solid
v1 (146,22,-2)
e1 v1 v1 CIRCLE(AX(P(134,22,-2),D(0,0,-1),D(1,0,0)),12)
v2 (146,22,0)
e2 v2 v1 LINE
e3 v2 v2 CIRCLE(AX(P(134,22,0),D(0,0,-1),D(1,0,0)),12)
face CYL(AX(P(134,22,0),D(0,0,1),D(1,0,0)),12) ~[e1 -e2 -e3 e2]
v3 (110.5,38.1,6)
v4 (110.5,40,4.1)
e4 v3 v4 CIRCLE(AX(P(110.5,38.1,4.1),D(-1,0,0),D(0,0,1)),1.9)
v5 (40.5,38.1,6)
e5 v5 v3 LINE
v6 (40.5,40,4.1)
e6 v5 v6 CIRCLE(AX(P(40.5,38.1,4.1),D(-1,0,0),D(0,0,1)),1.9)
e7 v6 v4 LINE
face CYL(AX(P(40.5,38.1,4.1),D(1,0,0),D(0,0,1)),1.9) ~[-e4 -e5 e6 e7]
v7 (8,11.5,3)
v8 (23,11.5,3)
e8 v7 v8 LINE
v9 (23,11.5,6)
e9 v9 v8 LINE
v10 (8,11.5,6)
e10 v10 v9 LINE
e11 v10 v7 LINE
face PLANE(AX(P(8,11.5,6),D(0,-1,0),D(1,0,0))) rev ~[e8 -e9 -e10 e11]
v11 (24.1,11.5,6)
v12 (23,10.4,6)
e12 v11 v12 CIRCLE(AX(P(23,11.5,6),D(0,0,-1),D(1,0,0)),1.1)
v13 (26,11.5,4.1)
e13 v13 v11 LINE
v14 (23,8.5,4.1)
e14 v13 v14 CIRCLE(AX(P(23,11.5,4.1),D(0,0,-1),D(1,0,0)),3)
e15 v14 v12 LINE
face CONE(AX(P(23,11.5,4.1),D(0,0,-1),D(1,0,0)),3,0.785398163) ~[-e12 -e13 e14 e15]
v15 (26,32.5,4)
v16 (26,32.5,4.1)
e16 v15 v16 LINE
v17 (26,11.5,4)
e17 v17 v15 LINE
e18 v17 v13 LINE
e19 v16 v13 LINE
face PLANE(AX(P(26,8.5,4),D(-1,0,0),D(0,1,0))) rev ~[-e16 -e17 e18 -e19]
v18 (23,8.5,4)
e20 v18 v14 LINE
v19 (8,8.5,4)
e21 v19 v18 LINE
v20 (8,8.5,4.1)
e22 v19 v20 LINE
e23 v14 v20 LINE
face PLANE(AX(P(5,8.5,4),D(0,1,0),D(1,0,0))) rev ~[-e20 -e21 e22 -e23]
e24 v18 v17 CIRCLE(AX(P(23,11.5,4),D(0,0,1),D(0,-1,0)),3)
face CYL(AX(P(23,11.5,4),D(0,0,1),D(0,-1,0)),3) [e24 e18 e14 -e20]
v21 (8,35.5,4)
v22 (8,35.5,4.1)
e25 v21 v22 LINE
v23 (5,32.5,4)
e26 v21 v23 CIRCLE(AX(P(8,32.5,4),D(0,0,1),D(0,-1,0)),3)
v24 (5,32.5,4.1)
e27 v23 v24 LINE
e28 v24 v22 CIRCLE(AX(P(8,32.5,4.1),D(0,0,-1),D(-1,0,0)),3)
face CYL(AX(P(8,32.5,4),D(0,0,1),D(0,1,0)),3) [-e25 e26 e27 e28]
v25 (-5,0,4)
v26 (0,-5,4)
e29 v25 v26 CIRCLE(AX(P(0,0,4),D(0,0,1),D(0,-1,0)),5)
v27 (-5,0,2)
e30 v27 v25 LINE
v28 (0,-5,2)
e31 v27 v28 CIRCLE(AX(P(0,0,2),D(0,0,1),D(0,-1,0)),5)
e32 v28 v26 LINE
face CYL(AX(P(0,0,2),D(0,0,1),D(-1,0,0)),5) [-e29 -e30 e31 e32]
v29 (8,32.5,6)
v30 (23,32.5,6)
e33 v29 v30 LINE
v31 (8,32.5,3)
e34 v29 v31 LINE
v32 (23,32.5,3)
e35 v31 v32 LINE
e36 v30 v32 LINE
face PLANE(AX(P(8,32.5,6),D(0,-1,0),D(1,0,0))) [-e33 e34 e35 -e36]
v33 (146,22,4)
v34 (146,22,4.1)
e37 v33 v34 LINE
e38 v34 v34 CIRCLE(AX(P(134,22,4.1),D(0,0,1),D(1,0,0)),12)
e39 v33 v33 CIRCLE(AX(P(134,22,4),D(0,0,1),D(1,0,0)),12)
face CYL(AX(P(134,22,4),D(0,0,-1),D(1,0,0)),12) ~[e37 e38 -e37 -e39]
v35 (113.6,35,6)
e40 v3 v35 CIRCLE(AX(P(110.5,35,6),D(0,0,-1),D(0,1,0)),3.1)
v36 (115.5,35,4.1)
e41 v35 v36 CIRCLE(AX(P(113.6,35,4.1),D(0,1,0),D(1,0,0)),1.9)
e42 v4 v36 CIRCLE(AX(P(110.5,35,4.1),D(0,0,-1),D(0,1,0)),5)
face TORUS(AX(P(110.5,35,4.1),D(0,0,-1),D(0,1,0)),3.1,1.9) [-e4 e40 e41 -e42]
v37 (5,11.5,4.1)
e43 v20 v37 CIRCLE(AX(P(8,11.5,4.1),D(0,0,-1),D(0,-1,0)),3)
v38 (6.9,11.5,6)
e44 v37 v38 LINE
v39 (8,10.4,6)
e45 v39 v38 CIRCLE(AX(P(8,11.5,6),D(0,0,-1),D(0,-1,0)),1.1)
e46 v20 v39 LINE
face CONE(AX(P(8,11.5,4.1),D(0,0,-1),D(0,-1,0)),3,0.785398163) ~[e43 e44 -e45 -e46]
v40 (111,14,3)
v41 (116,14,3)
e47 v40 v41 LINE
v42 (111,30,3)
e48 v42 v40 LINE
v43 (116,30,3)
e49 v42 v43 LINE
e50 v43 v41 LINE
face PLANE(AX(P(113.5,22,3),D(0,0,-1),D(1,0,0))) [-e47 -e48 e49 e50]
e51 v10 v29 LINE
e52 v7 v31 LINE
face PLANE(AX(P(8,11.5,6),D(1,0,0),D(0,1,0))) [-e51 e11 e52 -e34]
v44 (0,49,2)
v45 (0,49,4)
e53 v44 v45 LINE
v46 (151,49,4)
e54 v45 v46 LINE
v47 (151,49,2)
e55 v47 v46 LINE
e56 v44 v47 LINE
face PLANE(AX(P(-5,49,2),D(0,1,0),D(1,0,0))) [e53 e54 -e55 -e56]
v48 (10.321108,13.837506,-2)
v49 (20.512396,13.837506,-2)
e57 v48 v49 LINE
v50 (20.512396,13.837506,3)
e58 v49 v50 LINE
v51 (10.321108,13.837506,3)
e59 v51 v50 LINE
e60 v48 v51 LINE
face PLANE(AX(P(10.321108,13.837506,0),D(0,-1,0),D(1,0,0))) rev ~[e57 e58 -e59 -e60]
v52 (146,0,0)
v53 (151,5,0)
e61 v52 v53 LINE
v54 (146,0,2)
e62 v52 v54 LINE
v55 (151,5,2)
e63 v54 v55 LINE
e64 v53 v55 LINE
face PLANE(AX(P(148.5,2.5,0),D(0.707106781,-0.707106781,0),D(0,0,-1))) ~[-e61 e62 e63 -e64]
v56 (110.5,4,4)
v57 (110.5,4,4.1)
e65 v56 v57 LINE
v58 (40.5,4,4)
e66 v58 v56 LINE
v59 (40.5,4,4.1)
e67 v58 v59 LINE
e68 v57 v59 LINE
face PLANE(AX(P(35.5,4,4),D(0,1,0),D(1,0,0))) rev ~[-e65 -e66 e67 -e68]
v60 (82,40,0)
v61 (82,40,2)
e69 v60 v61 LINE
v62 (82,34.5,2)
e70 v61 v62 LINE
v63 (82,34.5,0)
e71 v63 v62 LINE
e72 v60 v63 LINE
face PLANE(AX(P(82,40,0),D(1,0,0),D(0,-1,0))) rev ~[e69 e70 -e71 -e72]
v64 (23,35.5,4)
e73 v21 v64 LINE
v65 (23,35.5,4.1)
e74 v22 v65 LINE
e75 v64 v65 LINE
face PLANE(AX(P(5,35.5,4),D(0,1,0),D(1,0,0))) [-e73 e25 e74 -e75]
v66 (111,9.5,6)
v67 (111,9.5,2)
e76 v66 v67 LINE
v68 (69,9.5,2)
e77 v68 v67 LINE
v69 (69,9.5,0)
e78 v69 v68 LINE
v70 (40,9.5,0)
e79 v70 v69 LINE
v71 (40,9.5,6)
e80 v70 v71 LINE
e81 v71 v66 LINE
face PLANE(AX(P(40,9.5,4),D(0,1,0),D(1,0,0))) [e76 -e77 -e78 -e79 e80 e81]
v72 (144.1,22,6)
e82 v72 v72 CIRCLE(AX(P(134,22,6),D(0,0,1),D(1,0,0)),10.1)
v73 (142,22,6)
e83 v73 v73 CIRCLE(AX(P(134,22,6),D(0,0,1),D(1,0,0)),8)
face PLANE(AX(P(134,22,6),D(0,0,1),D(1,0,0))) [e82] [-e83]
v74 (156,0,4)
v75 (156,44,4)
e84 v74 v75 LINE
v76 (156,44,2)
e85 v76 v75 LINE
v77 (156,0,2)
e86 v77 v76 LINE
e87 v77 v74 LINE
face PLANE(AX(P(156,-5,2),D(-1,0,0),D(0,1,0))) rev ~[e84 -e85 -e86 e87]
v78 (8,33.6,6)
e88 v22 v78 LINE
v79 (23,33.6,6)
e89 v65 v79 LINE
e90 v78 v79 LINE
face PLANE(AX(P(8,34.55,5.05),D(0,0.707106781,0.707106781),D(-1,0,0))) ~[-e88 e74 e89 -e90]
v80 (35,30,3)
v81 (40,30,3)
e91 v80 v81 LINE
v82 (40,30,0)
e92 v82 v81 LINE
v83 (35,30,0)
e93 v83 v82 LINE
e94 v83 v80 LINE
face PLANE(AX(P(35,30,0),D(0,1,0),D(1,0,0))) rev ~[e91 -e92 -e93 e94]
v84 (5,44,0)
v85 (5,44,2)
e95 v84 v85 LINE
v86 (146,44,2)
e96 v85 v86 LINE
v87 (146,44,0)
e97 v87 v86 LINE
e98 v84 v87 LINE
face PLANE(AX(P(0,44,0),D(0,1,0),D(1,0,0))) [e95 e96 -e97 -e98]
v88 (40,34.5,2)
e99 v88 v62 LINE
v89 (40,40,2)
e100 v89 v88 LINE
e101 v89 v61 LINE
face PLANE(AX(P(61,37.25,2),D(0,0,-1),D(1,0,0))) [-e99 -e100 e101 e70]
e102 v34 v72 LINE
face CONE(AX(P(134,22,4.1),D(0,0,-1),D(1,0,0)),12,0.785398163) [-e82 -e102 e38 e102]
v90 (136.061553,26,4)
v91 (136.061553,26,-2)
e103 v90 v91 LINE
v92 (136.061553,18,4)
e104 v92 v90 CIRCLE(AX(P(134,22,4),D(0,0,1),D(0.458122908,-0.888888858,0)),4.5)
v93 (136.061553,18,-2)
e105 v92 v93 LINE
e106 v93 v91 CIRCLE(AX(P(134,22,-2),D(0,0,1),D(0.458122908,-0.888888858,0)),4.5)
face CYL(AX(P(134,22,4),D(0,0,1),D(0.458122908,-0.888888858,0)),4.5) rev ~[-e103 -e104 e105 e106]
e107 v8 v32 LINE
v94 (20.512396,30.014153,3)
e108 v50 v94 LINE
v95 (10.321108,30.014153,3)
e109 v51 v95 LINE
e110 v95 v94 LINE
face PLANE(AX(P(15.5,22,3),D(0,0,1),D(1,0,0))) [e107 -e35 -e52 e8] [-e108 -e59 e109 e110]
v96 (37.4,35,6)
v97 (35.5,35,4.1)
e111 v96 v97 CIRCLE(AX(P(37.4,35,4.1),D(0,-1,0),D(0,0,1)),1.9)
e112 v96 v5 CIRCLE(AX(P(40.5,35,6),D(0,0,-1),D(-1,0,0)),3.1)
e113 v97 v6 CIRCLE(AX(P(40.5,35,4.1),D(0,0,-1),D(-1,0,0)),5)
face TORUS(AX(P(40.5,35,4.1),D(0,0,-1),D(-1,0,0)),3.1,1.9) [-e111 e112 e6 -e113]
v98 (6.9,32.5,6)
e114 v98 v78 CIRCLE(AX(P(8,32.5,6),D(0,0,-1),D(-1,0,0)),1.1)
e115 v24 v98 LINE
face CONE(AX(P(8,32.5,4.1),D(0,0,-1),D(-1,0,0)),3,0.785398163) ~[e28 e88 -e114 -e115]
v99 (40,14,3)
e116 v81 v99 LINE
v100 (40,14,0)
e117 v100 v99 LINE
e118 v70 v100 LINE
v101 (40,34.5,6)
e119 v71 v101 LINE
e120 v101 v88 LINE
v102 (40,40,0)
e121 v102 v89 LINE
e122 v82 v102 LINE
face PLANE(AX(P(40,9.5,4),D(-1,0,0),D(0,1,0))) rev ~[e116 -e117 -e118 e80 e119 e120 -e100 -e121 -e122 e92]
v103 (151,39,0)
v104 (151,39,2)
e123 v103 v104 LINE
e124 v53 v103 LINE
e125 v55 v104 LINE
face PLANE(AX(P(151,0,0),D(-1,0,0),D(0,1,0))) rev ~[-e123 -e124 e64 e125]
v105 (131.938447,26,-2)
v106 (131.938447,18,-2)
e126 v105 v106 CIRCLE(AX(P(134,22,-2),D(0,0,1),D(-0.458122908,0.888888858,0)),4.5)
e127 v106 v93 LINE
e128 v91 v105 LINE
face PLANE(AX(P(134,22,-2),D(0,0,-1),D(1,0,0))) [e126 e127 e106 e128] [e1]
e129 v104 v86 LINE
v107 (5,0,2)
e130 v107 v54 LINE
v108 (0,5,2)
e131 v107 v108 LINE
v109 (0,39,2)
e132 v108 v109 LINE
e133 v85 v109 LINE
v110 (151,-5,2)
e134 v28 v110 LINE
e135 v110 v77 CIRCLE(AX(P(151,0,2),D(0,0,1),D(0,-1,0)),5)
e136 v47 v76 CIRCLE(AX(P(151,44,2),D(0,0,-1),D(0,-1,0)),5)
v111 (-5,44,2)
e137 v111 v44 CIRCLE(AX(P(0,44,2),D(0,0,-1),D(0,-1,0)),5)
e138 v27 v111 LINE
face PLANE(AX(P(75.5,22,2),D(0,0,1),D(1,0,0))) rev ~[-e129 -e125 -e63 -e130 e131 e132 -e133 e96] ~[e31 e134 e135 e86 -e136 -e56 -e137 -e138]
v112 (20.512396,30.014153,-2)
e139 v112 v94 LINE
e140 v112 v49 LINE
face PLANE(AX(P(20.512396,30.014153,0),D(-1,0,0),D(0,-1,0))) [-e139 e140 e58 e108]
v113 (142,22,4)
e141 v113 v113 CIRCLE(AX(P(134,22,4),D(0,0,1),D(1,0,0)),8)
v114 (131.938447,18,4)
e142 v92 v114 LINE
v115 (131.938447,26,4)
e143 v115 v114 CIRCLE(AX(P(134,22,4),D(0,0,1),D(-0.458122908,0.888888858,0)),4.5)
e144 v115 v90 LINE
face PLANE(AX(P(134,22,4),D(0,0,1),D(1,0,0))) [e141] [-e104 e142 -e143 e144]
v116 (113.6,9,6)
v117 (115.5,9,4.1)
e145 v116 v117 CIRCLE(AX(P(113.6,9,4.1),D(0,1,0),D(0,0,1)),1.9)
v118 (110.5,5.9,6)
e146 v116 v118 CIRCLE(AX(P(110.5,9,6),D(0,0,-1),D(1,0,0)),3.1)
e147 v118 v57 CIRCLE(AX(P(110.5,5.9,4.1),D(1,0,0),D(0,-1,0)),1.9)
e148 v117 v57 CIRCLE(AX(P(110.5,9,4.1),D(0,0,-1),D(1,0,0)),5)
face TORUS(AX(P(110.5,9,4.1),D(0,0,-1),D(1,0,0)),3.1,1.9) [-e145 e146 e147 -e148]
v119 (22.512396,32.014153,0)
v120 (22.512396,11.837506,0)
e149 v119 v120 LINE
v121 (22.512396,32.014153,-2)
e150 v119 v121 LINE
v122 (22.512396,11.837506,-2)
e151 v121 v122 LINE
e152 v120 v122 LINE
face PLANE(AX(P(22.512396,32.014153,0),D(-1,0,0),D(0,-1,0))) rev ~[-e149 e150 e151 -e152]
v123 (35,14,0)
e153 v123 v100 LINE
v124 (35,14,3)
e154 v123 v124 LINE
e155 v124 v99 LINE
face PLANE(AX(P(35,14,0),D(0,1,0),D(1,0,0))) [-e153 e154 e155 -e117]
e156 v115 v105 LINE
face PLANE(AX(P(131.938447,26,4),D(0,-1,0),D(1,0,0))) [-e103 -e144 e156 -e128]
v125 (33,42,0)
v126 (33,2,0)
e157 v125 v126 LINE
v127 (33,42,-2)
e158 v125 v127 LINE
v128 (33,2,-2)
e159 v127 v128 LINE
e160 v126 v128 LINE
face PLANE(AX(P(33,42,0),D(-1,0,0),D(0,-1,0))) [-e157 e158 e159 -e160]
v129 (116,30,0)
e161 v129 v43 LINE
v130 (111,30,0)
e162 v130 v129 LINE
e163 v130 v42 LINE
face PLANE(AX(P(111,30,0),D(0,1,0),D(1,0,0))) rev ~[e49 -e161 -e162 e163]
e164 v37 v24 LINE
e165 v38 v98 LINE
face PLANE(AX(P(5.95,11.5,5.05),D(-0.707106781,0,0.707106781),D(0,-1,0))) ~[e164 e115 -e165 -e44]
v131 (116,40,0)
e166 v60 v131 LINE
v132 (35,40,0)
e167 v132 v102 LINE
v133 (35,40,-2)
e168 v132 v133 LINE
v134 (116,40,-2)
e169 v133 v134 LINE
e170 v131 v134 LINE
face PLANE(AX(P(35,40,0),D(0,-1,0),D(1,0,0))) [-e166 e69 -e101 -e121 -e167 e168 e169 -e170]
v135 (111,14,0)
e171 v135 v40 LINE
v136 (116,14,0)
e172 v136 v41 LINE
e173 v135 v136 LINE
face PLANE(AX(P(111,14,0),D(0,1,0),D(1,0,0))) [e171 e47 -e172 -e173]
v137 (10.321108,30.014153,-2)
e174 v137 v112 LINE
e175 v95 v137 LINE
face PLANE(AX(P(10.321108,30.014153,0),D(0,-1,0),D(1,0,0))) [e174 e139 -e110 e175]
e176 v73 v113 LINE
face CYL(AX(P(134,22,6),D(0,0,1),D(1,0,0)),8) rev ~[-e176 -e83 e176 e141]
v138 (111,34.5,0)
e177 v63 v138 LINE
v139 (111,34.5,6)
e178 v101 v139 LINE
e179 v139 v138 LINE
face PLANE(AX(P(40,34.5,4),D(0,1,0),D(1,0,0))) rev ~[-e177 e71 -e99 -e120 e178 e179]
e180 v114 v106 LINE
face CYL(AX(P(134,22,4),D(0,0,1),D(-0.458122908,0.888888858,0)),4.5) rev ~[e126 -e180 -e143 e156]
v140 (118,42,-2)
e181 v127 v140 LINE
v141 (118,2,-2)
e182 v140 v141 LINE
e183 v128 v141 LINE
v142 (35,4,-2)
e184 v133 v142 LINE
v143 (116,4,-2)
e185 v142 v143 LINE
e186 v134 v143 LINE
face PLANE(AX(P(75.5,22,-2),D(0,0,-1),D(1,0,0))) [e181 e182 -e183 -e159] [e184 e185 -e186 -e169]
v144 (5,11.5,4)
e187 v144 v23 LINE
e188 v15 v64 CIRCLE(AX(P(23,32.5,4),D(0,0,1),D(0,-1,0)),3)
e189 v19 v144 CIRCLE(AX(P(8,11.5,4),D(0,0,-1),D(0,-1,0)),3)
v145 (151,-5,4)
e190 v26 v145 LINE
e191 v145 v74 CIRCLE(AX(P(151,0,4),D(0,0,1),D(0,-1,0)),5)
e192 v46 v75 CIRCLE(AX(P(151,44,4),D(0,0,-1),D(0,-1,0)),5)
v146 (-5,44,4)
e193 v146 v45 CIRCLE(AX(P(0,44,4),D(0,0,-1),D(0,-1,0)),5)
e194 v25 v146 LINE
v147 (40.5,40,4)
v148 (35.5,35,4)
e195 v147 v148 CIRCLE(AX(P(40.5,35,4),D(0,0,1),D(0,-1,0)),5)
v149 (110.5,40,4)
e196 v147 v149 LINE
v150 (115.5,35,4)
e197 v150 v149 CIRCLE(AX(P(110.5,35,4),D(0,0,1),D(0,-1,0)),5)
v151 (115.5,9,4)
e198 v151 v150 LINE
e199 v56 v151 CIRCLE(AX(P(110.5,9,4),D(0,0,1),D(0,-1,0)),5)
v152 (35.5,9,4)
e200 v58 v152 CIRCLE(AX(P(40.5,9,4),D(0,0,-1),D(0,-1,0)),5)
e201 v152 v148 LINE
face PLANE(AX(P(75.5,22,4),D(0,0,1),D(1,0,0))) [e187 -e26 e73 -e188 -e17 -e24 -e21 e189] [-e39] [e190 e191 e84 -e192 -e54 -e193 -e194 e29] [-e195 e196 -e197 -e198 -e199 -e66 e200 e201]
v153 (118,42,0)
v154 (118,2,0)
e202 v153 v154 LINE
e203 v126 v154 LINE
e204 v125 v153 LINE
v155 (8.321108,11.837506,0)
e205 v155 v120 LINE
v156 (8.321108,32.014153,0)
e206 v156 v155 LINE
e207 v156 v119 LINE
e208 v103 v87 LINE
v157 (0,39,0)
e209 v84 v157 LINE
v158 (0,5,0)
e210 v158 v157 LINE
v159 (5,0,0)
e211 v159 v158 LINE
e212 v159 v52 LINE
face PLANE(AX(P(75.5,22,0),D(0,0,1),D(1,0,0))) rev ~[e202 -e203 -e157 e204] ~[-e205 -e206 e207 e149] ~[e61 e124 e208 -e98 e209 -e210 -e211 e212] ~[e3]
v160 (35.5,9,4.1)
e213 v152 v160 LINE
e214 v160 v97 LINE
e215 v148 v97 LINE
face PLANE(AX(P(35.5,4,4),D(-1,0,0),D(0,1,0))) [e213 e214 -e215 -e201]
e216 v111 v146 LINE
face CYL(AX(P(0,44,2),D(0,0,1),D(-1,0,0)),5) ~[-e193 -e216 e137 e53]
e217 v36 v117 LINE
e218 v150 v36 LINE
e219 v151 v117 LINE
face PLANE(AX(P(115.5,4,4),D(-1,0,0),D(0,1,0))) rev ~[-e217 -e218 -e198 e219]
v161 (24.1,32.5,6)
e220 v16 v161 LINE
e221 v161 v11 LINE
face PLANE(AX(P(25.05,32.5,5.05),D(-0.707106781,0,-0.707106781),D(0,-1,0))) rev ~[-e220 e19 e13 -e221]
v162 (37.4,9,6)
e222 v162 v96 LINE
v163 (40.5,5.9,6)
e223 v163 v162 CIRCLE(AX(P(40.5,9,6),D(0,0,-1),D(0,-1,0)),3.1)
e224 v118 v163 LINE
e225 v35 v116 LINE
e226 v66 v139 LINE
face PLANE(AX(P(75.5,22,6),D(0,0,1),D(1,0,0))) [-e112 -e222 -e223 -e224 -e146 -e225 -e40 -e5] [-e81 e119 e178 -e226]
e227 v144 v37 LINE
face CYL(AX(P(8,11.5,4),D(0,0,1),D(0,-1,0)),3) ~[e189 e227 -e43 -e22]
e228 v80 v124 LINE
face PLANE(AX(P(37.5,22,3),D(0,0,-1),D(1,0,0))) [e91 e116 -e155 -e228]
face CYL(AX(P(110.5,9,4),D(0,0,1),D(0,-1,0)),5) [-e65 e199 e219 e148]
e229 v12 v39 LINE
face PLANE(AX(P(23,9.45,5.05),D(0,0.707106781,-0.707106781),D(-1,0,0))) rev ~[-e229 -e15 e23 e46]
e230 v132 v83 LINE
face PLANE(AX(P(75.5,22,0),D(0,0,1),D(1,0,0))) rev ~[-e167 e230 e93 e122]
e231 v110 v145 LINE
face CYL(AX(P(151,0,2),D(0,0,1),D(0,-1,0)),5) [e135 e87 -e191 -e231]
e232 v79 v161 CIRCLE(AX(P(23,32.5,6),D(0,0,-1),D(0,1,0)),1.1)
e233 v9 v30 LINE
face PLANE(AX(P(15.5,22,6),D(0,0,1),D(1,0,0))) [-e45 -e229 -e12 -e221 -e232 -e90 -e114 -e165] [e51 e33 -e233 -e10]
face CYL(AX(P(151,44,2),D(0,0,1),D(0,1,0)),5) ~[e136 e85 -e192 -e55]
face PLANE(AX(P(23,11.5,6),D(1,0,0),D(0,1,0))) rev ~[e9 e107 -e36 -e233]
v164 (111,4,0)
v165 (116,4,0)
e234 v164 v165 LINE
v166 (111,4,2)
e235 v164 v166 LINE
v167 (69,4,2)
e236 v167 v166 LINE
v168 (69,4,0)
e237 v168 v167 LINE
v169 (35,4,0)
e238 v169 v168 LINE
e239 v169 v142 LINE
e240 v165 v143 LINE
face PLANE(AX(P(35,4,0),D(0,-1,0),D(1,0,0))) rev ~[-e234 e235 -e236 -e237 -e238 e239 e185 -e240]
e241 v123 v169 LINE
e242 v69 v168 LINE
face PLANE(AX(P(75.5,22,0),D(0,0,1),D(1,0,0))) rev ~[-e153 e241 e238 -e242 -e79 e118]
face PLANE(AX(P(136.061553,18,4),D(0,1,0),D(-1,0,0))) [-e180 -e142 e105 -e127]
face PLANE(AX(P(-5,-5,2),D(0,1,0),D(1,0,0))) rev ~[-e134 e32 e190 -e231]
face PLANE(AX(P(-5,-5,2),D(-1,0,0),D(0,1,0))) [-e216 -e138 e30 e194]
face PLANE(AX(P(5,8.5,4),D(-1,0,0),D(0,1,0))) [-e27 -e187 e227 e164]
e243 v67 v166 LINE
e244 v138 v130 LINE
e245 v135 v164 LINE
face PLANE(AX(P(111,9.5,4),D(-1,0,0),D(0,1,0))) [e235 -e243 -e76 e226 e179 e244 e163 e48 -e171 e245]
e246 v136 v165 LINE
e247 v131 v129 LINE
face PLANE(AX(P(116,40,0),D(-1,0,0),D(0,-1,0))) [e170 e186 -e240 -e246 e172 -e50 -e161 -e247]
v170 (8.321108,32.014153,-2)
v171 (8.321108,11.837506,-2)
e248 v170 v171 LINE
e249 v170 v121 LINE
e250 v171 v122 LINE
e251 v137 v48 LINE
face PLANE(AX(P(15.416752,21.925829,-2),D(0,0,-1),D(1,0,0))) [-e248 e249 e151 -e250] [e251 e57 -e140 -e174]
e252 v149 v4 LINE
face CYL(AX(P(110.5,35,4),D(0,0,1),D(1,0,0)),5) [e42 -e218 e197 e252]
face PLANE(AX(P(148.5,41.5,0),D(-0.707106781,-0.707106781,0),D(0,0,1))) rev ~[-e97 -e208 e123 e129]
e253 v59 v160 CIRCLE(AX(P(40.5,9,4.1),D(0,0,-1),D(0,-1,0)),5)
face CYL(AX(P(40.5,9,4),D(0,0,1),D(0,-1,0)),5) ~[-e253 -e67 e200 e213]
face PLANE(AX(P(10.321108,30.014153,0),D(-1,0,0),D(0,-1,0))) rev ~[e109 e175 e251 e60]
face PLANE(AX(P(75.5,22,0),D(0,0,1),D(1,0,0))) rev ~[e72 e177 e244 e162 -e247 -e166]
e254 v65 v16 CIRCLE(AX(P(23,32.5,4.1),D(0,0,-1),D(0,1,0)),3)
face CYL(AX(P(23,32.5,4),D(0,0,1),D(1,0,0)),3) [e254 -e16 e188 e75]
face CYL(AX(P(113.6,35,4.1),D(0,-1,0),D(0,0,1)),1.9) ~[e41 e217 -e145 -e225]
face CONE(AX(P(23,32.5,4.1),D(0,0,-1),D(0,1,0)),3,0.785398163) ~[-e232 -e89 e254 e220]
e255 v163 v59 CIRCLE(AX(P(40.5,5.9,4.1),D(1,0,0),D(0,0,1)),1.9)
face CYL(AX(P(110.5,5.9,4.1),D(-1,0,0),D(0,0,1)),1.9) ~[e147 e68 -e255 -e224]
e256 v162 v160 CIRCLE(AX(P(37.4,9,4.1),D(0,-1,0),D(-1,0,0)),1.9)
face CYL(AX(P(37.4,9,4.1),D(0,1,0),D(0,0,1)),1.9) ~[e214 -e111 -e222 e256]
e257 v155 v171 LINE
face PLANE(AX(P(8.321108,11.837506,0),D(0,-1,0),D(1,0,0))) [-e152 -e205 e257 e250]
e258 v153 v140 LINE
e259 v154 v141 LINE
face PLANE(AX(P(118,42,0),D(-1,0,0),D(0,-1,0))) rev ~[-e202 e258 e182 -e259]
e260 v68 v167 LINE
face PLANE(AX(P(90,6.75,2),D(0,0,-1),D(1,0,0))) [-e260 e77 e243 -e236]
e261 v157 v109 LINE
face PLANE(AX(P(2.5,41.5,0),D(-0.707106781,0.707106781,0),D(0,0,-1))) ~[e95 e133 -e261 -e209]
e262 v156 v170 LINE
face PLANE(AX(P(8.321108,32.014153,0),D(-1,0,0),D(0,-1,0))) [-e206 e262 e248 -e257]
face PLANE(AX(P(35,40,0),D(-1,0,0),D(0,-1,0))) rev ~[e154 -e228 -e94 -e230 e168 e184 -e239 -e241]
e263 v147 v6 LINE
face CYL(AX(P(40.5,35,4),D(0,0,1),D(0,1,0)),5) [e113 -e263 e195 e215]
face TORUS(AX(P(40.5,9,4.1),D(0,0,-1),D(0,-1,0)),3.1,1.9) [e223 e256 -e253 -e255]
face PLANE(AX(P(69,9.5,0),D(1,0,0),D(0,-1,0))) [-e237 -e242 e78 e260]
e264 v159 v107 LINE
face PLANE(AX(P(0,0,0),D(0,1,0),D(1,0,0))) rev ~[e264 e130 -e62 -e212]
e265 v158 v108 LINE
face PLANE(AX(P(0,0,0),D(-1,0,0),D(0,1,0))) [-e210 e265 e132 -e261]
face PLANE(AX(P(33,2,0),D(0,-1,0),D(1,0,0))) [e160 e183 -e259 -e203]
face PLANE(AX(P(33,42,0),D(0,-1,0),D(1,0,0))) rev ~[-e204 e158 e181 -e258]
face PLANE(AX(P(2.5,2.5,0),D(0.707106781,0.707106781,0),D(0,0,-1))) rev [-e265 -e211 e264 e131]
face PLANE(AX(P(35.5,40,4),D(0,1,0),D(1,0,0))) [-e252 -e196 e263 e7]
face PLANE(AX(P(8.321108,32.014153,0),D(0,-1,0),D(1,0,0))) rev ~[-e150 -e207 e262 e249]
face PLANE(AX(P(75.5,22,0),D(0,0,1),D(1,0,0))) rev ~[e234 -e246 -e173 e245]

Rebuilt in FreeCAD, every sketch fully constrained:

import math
import FreeCAD as App
import Part
import Sketcher


def edges_at(feature, points):
    """Names of the edges that pass closest to the given points."""
    edges = feature.Shape.Edges
    near = lambda p: min(range(len(edges)), key=lambda i: edges[i].distToShape(Part.Vertex(*p))[0])
    return sorted({f"Edge{near(p) + 1}" for p in points})

doc = App.newDocument("Part")
body = doc.addObject("PartDesign::Body", "Body")

sketch1 = body.newObject("Sketcher::SketchObject", "Sketch")
sketch1.AttachmentSupport = (doc.getObject("XY_Plane"), [""])
sketch1.MapMode = "FlatFace"
sketch1.addGeometry(Part.LineSegment(App.Vector(0, 44, 0), App.Vector(0, 0, 0)), False)
sketch1.addGeometry(Part.LineSegment(App.Vector(0, 0, 0), App.Vector(151, 0, 0)), False)
sketch1.addGeometry(Part.LineSegment(App.Vector(151, 0, 0), App.Vector(151, 44, 0)), False)
sketch1.addGeometry(Part.LineSegment(App.Vector(151, 44, 0), App.Vector(0, 44, 0)), False)
sketch1.addConstraint(Sketcher.Constraint("Coincident", 0, 2, 1, 1))
sketch1.addConstraint(Sketcher.Constraint("Coincident", 1, 2, 2, 1))
sketch1.addConstraint(Sketcher.Constraint("Coincident", 2, 2, 3, 1))
sketch1.addConstraint(Sketcher.Constraint("Coincident", 3, 2, 0, 1))
sketch1.addConstraint(Sketcher.Constraint("Vertical", 0))
sketch1.addConstraint(Sketcher.Constraint("Horizontal", 1))
sketch1.addConstraint(Sketcher.Constraint("Vertical", 2))
sketch1.addConstraint(Sketcher.Constraint("Horizontal", 3))
sketch1.addConstraint(Sketcher.Constraint("Coincident", 0, 2, -1, 1))
sketch1.addConstraint(Sketcher.Constraint("DistanceX", 1, 1, 1, 2, 151.0))
sketch1.addConstraint(Sketcher.Constraint("DistanceY", 0, 2, 0, 1, 44.0))
pad1 = body.newObject("PartDesign::Pad", "Pad")
pad1.Profile = sketch1
pad1.Length = 2

sketch2 = body.newObject("Sketcher::SketchObject", "Sketch001")
sketch2.AttachmentSupport = (doc.getObject("XY_Plane"), [""])
sketch2.MapMode = "FlatFace"
sketch2.AttachmentOffset = App.Placement(App.Vector(0, 0, 2), App.Rotation())
sketch2.addGeometry(Part.LineSegment(App.Vector(-5, 49, 0), App.Vector(-5, -5, 0)), False)
sketch2.addGeometry(Part.LineSegment(App.Vector(-5, -5, 0), App.Vector(156, -5, 0)), False)
sketch2.addGeometry(Part.LineSegment(App.Vector(156, -5, 0), App.Vector(156, 49, 0)), False)
sketch2.addGeometry(Part.LineSegment(App.Vector(156, 49, 0), App.Vector(-5, 49, 0)), False)
sketch2.addConstraint(Sketcher.Constraint("Coincident", 0, 2, 1, 1))
sketch2.addConstraint(Sketcher.Constraint("Coincident", 1, 2, 2, 1))
sketch2.addConstraint(Sketcher.Constraint("Coincident", 2, 2, 3, 1))
sketch2.addConstraint(Sketcher.Constraint("Coincident", 3, 2, 0, 1))
sketch2.addConstraint(Sketcher.Constraint("Vertical", 0))
sketch2.addConstraint(Sketcher.Constraint("Horizontal", 1))
sketch2.addConstraint(Sketcher.Constraint("Vertical", 2))
sketch2.addConstraint(Sketcher.Constraint("Horizontal", 3))
sketch2.addConstraint(Sketcher.Constraint("DistanceX", 1, 1, 1, 2, 161.0))
sketch2.addConstraint(Sketcher.Constraint("DistanceY", 0, 2, 0, 1, 54.0))
sketch2.addConstraint(Sketcher.Constraint("DistanceX", 0, 2, -1, 1, 5.0))
sketch2.addConstraint(Sketcher.Constraint("DistanceY", 0, 2, -1, 1, 5.0))
pad2 = body.newObject("PartDesign::Pad", "Pad001")
pad2.Profile = sketch2
pad2.Length = 2

sketch3 = body.newObject("Sketcher::SketchObject", "Sketch002")
sketch3.AttachmentSupport = (doc.getObject("XY_Plane"), [""])
sketch3.MapMode = "FlatFace"
sketch3.AttachmentOffset = App.Placement(App.Vector(0, 0, 4), App.Rotation())
sketch3.addGeometry(Part.LineSegment(App.Vector(5, 36, 0), App.Vector(5, 8, 0)), False)
sketch3.addGeometry(Part.LineSegment(App.Vector(5, 8, 0), App.Vector(26, 8, 0)), False)
sketch3.addGeometry(Part.LineSegment(App.Vector(26, 8, 0), App.Vector(26, 36, 0)), False)
sketch3.addGeometry(Part.LineSegment(App.Vector(26, 36, 0), App.Vector(5, 36, 0)), False)
sketch3.addConstraint(Sketcher.Constraint("Coincident", 0, 2, 1, 1))
sketch3.addConstraint(Sketcher.Constraint("Coincident", 1, 2, 2, 1))
sketch3.addConstraint(Sketcher.Constraint("Coincident", 2, 2, 3, 1))
sketch3.addConstraint(Sketcher.Constraint("Coincident", 3, 2, 0, 1))
sketch3.addConstraint(Sketcher.Constraint("Vertical", 0))
sketch3.addConstraint(Sketcher.Constraint("Horizontal", 1))
sketch3.addConstraint(Sketcher.Constraint("Vertical", 2))
sketch3.addConstraint(Sketcher.Constraint("Horizontal", 3))
sketch3.addConstraint(Sketcher.Constraint("DistanceX", 1, 1, 1, 2, 21.0))
sketch3.addConstraint(Sketcher.Constraint("DistanceY", 0, 2, 0, 1, 27.0))
sketch3.addConstraint(Sketcher.Constraint("DistanceX", -1, 1, 0, 2, 5.0))
sketch3.addConstraint(Sketcher.Constraint("DistanceY", -1, 1, 0, 2, 8.5))
pad3 = body.newObject("PartDesign::Pad", "Pad002")
pad3.Profile = sketch3
pad3.Length = 2

sketch4 = body.newObject("Sketcher::SketchObject", "Sketch003")
sketch4.AttachmentSupport = (doc.getObject("XY_Plane"), [""])
sketch4.MapMode = "FlatFace"
sketch4.AttachmentOffset = App.Placement(App.Vector(0, 0, 6), App.Rotation())
sketch4.addGeometry(Part.LineSegment(App.Vector(8, 32, 0), App.Vector(8, 12, 0)), False)
sketch4.addGeometry(Part.LineSegment(App.Vector(8, 12, 0), App.Vector(23, 12, 0)), False)
sketch4.addGeometry(Part.LineSegment(App.Vector(23, 12, 0), App.Vector(23, 32, 0)), False)
sketch4.addGeometry(Part.LineSegment(App.Vector(23, 32, 0), App.Vector(8, 32, 0)), False)
sketch4.addConstraint(Sketcher.Constraint("Coincident", 0, 2, 1, 1))
sketch4.addConstraint(Sketcher.Constraint("Coincident", 1, 2, 2, 1))
sketch4.addConstraint(Sketcher.Constraint("Coincident", 2, 2, 3, 1))
sketch4.addConstraint(Sketcher.Constraint("Coincident", 3, 2, 0, 1))
sketch4.addConstraint(Sketcher.Constraint("Vertical", 0))
sketch4.addConstraint(Sketcher.Constraint("Horizontal", 1))
sketch4.addConstraint(Sketcher.Constraint("Vertical", 2))
sketch4.addConstraint(Sketcher.Constraint("Horizontal", 3))
sketch4.addConstraint(Sketcher.Constraint("DistanceX", 1, 1, 1, 2, 15.0))
sketch4.addConstraint(Sketcher.Constraint("DistanceY", 0, 2, 0, 1, 21.0))
sketch4.addConstraint(Sketcher.Constraint("DistanceX", -1, 1, 0, 2, 8.0))
sketch4.addConstraint(Sketcher.Constraint("DistanceY", -1, 1, 0, 2, 11.5))
pocket1 = body.newObject("PartDesign::Pocket", "Pocket")
pocket1.Profile = sketch4
pocket1.Length = 3

sketch5 = body.newObject("Sketcher::SketchObject", "Sketch004")
sketch5.AttachmentSupport = (doc.getObject("XY_Plane"), [""])
sketch5.MapMode = "FlatFace"
sketch5.AttachmentOffset = App.Placement(App.Vector(0, 0, 3), App.Rotation())
sketch5.addGeometry(Part.LineSegment(App.Vector(10, 30, 0), App.Vector(10, 14, 0)), False)
sketch5.addGeometry(Part.LineSegment(App.Vector(10, 14, 0), App.Vector(21, 14, 0)), False)
sketch5.addGeometry(Part.LineSegment(App.Vector(21, 14, 0), App.Vector(21, 30, 0)), False)
sketch5.addGeometry(Part.LineSegment(App.Vector(21, 30, 0), App.Vector(10, 30, 0)), False)
sketch5.addConstraint(Sketcher.Constraint("Coincident", 0, 2, 1, 1))
sketch5.addConstraint(Sketcher.Constraint("Coincident", 1, 2, 2, 1))
sketch5.addConstraint(Sketcher.Constraint("Coincident", 2, 2, 3, 1))
sketch5.addConstraint(Sketcher.Constraint("Coincident", 3, 2, 0, 1))
sketch5.addConstraint(Sketcher.Constraint("Vertical", 0))
sketch5.addConstraint(Sketcher.Constraint("Horizontal", 1))
sketch5.addConstraint(Sketcher.Constraint("Vertical", 2))
sketch5.addConstraint(Sketcher.Constraint("Horizontal", 3))
sketch5.addConstraint(Sketcher.Constraint("DistanceX", 1, 1, 1, 2, 10.191287))
sketch5.addConstraint(Sketcher.Constraint("DistanceY", 0, 2, 0, 1, 16.176647))
sketch5.addConstraint(Sketcher.Constraint("DistanceX", -1, 1, 0, 2, 10.321108))
sketch5.addConstraint(Sketcher.Constraint("DistanceY", -1, 1, 0, 2, 13.837506))
pocket2 = body.newObject("PartDesign::Pocket", "Pocket001")
pocket2.Profile = sketch5
pocket2.Type = "ThroughAll"
doc.recompute()

chamfer = body.newObject("PartDesign::Chamfer", "Chamfer")
chamfer.Base = (pocket2, edges_at(pocket2, [
    (151, 0, 1),
    (151, 44, 1),
    (0, 44, 1),
    (0, 0, 1),
]))
chamfer.Size = 5
doc.recompute()

fillet = body.newObject("PartDesign::Fillet", "Fillet")
fillet.Base = (chamfer, edges_at(chamfer, [
    (-5, -5, 3),
    (-5, 49, 3),
    (156, -5, 3),
    (156, 49, 3),
]))
fillet.Radius = 5
doc.recompute()

fillet2 = body.newObject("PartDesign::Fillet", "Fillet001")
fillet2.Base = (fillet, edges_at(fillet, [
    (26, 8.5, 5),
    (26, 35.5, 5),
    (5, 8.5, 5),
    (5, 35.5, 5),
]))
fillet2.Radius = 3
doc.recompute()

chamfer2 = body.newObject("PartDesign::Chamfer", "Chamfer001")
chamfer2.Base = (fillet2, edges_at(fillet2, [(5, 22, 6)]))
chamfer2.Size = 1.9

sketch6 = body.newObject("Sketcher::SketchObject", "Sketch005")
sketch6.AttachmentSupport = (doc.getObject("XY_Plane"), [""])
sketch6.MapMode = "FlatFace"
sketch6.AttachmentOffset = App.Placement(App.Vector(0, 0, 4), App.Rotation())
sketch6.addGeometry(Part.Circle(App.Vector(134, 22, 0), App.Vector(0, 0, 1), 12), False)
sketch6.addConstraint(Sketcher.Constraint("Diameter", 0, 24.0))
sketch6.addConstraint(Sketcher.Constraint("DistanceX", -1, 1, 0, 3, 134.0))
sketch6.addConstraint(Sketcher.Constraint("DistanceY", -1, 1, 0, 3, 22.0))
pad4 = body.newObject("PartDesign::Pad", "Pad003")
pad4.Profile = sketch6
pad4.Length = 2

sketch7 = body.newObject("Sketcher::SketchObject", "Sketch006")
sketch7.AttachmentSupport = (doc.getObject("XY_Plane"), [""])
sketch7.MapMode = "FlatFace"
sketch7.AttachmentOffset = App.Placement(App.Vector(0, 0, 6), App.Rotation())
sketch7.addGeometry(Part.Circle(App.Vector(134, 22, 0), App.Vector(0, 0, 1), 8), False)
sketch7.addConstraint(Sketcher.Constraint("Diameter", 0, 16.0))
sketch7.addConstraint(Sketcher.Constraint("DistanceX", -1, 1, 0, 3, 134.0))
sketch7.addConstraint(Sketcher.Constraint("DistanceY", -1, 1, 0, 3, 22.0))
pocket3 = body.newObject("PartDesign::Pocket", "Pocket002")
pocket3.Profile = sketch7
pocket3.Length = 2
doc.recompute()

chamfer3 = body.newObject("PartDesign::Chamfer", "Chamfer002")
chamfer3.Base = (pocket3, edges_at(pocket3, [(122, 22, 6)]))
chamfer3.Size = 1.9

sketch8 = body.newObject("Sketcher::SketchObject", "Sketch007")
sketch8.AttachmentSupport = (doc.getObject("XY_Plane"), [""])
sketch8.MapMode = "FlatFace"
sketch8.addGeometry(Part.Circle(App.Vector(134, 22, 0), App.Vector(0, 0, 1), 12), False)
sketch8.addConstraint(Sketcher.Constraint("Diameter", 0, 24.0))
sketch8.addConstraint(Sketcher.Constraint("DistanceX", -1, 1, 0, 3, 134.0))
sketch8.addConstraint(Sketcher.Constraint("DistanceY", -1, 1, 0, 3, 22.0))
pad5 = body.newObject("PartDesign::Pad", "Pad004")
pad5.Profile = sketch8
pad5.Length = 2
pad5.Reversed = True

sketch9 = body.newObject("Sketcher::SketchObject", "Sketch008")
sketch9.AttachmentSupport = (doc.getObject("XY_Plane"), [""])
sketch9.MapMode = "FlatFace"
sketch9.AttachmentOffset = App.Placement(App.Vector(0, 0, 4), App.Rotation())
sketch9.addGeometry(Part.ArcOfCircle(Part.Circle(App.Vector(134, 22, 0), App.Vector(0, 0, 1), 4.5), math.radians(117), math.radians(243)), False)
sketch9.addGeometry(Part.LineSegment(App.Vector(131.9, 18, 0), App.Vector(136.1, 18, 0)), False)
sketch9.addGeometry(Part.ArcOfCircle(Part.Circle(App.Vector(134, 22, 0), App.Vector(0, 0, 1), 4.5), math.radians(-63), math.radians(63)), False)
sketch9.addGeometry(Part.LineSegment(App.Vector(136.1, 26, 0), App.Vector(131.9, 26, 0)), False)
sketch9.addConstraint(Sketcher.Constraint("Coincident", 0, 2, 1, 1))
sketch9.addConstraint(Sketcher.Constraint("Coincident", 1, 2, 2, 1))
sketch9.addConstraint(Sketcher.Constraint("Coincident", 2, 2, 3, 1))
sketch9.addConstraint(Sketcher.Constraint("Coincident", 3, 2, 0, 1))
sketch9.addConstraint(Sketcher.Constraint("Horizontal", 1))
sketch9.addConstraint(Sketcher.Constraint("Horizontal", 3))
sketch9.addConstraint(Sketcher.Constraint("Coincident", 2, 3, 0, 3))
sketch9.addConstraint(Sketcher.Constraint("Equal", 0, 2))
sketch9.addConstraint(Sketcher.Constraint("Vertical", 1, 2, 2, 2))
sketch9.addConstraint(Sketcher.Constraint("Radius", 0, 4.5))
sketch9.addConstraint(Sketcher.Constraint("DistanceX", -1, 1, 0, 3, 134.0))
sketch9.addConstraint(Sketcher.Constraint("DistanceY", -1, 1, 0, 3, 22.0))
sketch9.addConstraint(Sketcher.Constraint("DistanceY", -1, 1, 0, 2, 18.0))
pocket4 = body.newObject("PartDesign::Pocket", "Pocket003")
pocket4.Profile = sketch9
pocket4.Type = "ThroughAll"

sketch10 = body.newObject("Sketcher::SketchObject", "Sketch009")
sketch10.AttachmentSupport = (doc.getObject("XY_Plane"), [""])
sketch10.MapMode = "FlatFace"
sketch10.AttachmentOffset = App.Placement(App.Vector(0, 0, 4), App.Rotation())
sketch10.addGeometry(Part.LineSegment(App.Vector(36, 40, 0), App.Vector(36, 4, 0)), False)
sketch10.addGeometry(Part.LineSegment(App.Vector(36, 4, 0), App.Vector(116, 4, 0)), False)
sketch10.addGeometry(Part.LineSegment(App.Vector(116, 4, 0), App.Vector(116, 40, 0)), False)
sketch10.addGeometry(Part.LineSegment(App.Vector(116, 40, 0), App.Vector(36, 40, 0)), False)
sketch10.addGeometry(Part.LineSegment(App.Vector(111, 10, 0), App.Vector(40, 10, 0)), False)
sketch10.addGeometry(Part.LineSegment(App.Vector(40, 10, 0), App.Vector(40, 34, 0)), False)
sketch10.addGeometry(Part.LineSegment(App.Vector(40, 34, 0), App.Vector(111, 34, 0)), False)
sketch10.addGeometry(Part.LineSegment(App.Vector(111, 34, 0), App.Vector(111, 10, 0)), False)
sketch10.addConstraint(Sketcher.Constraint("Coincident", 0, 2, 1, 1))
sketch10.addConstraint(Sketcher.Constraint("Coincident", 1, 2, 2, 1))
sketch10.addConstraint(Sketcher.Constraint("Coincident", 2, 2, 3, 1))
sketch10.addConstraint(Sketcher.Constraint("Coincident", 3, 2, 0, 1))
sketch10.addConstraint(Sketcher.Constraint("Coincident", 4, 2, 5, 1))
sketch10.addConstraint(Sketcher.Constraint("Coincident", 5, 2, 6, 1))
sketch10.addConstraint(Sketcher.Constraint("Coincident", 6, 2, 7, 1))
sketch10.addConstraint(Sketcher.Constraint("Coincident", 7, 2, 4, 1))
sketch10.addConstraint(Sketcher.Constraint("Vertical", 0))
sketch10.addConstraint(Sketcher.Constraint("Horizontal", 1))
sketch10.addConstraint(Sketcher.Constraint("Vertical", 2))
sketch10.addConstraint(Sketcher.Constraint("Horizontal", 3))
sketch10.addConstraint(Sketcher.Constraint("Horizontal", 4))
sketch10.addConstraint(Sketcher.Constraint("Vertical", 5))
sketch10.addConstraint(Sketcher.Constraint("Horizontal", 6))
sketch10.addConstraint(Sketcher.Constraint("Vertical", 7))
sketch10.addConstraint(Sketcher.Constraint("DistanceX", 1, 1, 1, 2, 80.0))
sketch10.addConstraint(Sketcher.Constraint("DistanceX", 4, 2, 4, 1, 71.0))
sketch10.addConstraint(Sketcher.Constraint("DistanceY", 0, 2, 0, 1, 36.0))
sketch10.addConstraint(Sketcher.Constraint("DistanceY", 5, 1, 5, 2, 25.0))
sketch10.addConstraint(Sketcher.Constraint("DistanceY", -1, 1, 0, 2, 4.0))
sketch10.addConstraint(Sketcher.Constraint("DistanceX", -1, 1, 4, 2, 40.0))
sketch10.addConstraint(Sketcher.Constraint("DistanceX", -1, 1, 0, 2, 35.5))
sketch10.addConstraint(Sketcher.Constraint("DistanceY", -1, 1, 4, 2, 9.5))
pad6 = body.newObject("PartDesign::Pad", "Pad005")
pad6.Profile = sketch10
pad6.Length = 2
doc.recompute()

fillet3 = body.newObject("PartDesign::Fillet", "Fillet002")
fillet3.Base = (pad6, edges_at(pad6, [
    (115.5, 4, 5),
    (115.5, 40, 5),
    (35.5, 4, 5),
    (35.5, 40, 5),
]))
fillet3.Radius = 5

sketch11 = body.newObject("Sketcher::SketchObject", "Sketch010")
sketch11.AttachmentSupport = (doc.getObject("XY_Plane"), [""])
sketch11.MapMode = "FlatFace"
sketch11.AttachmentOffset = App.Placement(App.Vector(0, 0, 4), App.Rotation())
sketch11.addGeometry(Part.LineSegment(App.Vector(40, 34, 0), App.Vector(40, 10, 0)), False)
sketch11.addGeometry(Part.LineSegment(App.Vector(40, 10, 0), App.Vector(111, 10, 0)), False)
sketch11.addGeometry(Part.LineSegment(App.Vector(111, 10, 0), App.Vector(111, 34, 0)), False)
sketch11.addGeometry(Part.LineSegment(App.Vector(111, 34, 0), App.Vector(40, 34, 0)), False)
sketch11.addConstraint(Sketcher.Constraint("Coincident", 0, 2, 1, 1))
sketch11.addConstraint(Sketcher.Constraint("Coincident", 1, 2, 2, 1))
sketch11.addConstraint(Sketcher.Constraint("Coincident", 2, 2, 3, 1))
sketch11.addConstraint(Sketcher.Constraint("Coincident", 3, 2, 0, 1))
sketch11.addConstraint(Sketcher.Constraint("Vertical", 0))
sketch11.addConstraint(Sketcher.Constraint("Horizontal", 1))
sketch11.addConstraint(Sketcher.Constraint("Vertical", 2))
sketch11.addConstraint(Sketcher.Constraint("Horizontal", 3))
sketch11.addConstraint(Sketcher.Constraint("DistanceX", 1, 1, 1, 2, 71.0))
sketch11.addConstraint(Sketcher.Constraint("DistanceY", 0, 2, 0, 1, 25.0))
sketch11.addConstraint(Sketcher.Constraint("DistanceX", -1, 1, 0, 2, 40.0))
sketch11.addConstraint(Sketcher.Constraint("DistanceY", -1, 1, 0, 2, 9.5))
pocket5 = body.newObject("PartDesign::Pocket", "Pocket004")
pocket5.Profile = sketch11
pocket5.Type = "ThroughAll"
doc.recompute()

fillet4 = body.newObject("PartDesign::Fillet", "Fillet003")
fillet4.Base = (pocket5, edges_at(pocket5, [(75.5, 40, 6)]))
fillet4.Radius = 1.9

sketch12 = body.newObject("Sketcher::SketchObject", "Sketch011")
sketch12.AttachmentSupport = (doc.getObject("XY_Plane"), [""])
sketch12.MapMode = "FlatFace"
sketch12.addGeometry(Part.LineSegment(App.Vector(33, 2, 0), App.Vector(33, 42, 0)), False)
sketch12.addGeometry(Part.LineSegment(App.Vector(33, 42, 0), App.Vector(118, 42, 0)), False)
sketch12.addGeometry(Part.LineSegment(App.Vector(118, 42, 0), App.Vector(118, 2, 0)), False)
sketch12.addGeometry(Part.LineSegment(App.Vector(118, 2, 0), App.Vector(33, 2, 0)), False)
sketch12.addGeometry(Part.LineSegment(App.Vector(116, 40, 0), App.Vector(35, 40, 0)), False)
sketch12.addGeometry(Part.LineSegment(App.Vector(35, 40, 0), App.Vector(35, 4, 0)), False)
sketch12.addGeometry(Part.LineSegment(App.Vector(35, 4, 0), App.Vector(116, 4, 0)), False)
sketch12.addGeometry(Part.LineSegment(App.Vector(116, 4, 0), App.Vector(116, 40, 0)), False)
sketch12.addConstraint(Sketcher.Constraint("Coincident", 0, 2, 1, 1))
sketch12.addConstraint(Sketcher.Constraint("Coincident", 1, 2, 2, 1))
sketch12.addConstraint(Sketcher.Constraint("Coincident", 2, 2, 3, 1))
sketch12.addConstraint(Sketcher.Constraint("Coincident", 3, 2, 0, 1))
sketch12.addConstraint(Sketcher.Constraint("Coincident", 4, 2, 5, 1))
sketch12.addConstraint(Sketcher.Constraint("Coincident", 5, 2, 6, 1))
sketch12.addConstraint(Sketcher.Constraint("Coincident", 6, 2, 7, 1))
sketch12.addConstraint(Sketcher.Constraint("Coincident", 7, 2, 4, 1))
sketch12.addConstraint(Sketcher.Constraint("Vertical", 0))
sketch12.addConstraint(Sketcher.Constraint("Horizontal", 1))
sketch12.addConstraint(Sketcher.Constraint("Vertical", 2))
sketch12.addConstraint(Sketcher.Constraint("Horizontal", 3))
sketch12.addConstraint(Sketcher.Constraint("Horizontal", 4))
sketch12.addConstraint(Sketcher.Constraint("Vertical", 5))
sketch12.addConstraint(Sketcher.Constraint("Horizontal", 6))
sketch12.addConstraint(Sketcher.Constraint("Vertical", 7))
sketch12.addConstraint(Sketcher.Constraint("DistanceX", 1, 1, 1, 2, 85.0))
sketch12.addConstraint(Sketcher.Constraint("DistanceX", 4, 2, 4, 1, 81.0))
sketch12.addConstraint(Sketcher.Constraint("DistanceY", 0, 1, 0, 2, 40.0))
sketch12.addConstraint(Sketcher.Constraint("DistanceY", 5, 2, 5, 1, 36.0))
sketch12.addConstraint(Sketcher.Constraint("DistanceX", -1, 1, 0, 2, 33.0))
sketch12.addConstraint(Sketcher.Constraint("DistanceY", -1, 1, 0, 2, 42.0))
sketch12.addConstraint(Sketcher.Constraint("DistanceX", -1, 1, 4, 2, 35.0))
sketch12.addConstraint(Sketcher.Constraint("DistanceY", -1, 1, 4, 2, 40.0))
pad7 = body.newObject("PartDesign::Pad", "Pad006")
pad7.Profile = sketch12
pad7.Length = 2
pad7.Reversed = True

sketch13 = body.newObject("Sketcher::SketchObject", "Sketch012")
sketch13.AttachmentSupport = (doc.getObject("XY_Plane"), [""])
sketch13.MapMode = "FlatFace"
sketch13.addGeometry(Part.LineSegment(App.Vector(69, 4, 0), App.Vector(69, 10, 0)), False)
sketch13.addGeometry(Part.LineSegment(App.Vector(69, 10, 0), App.Vector(111, 10, 0)), False)
sketch13.addGeometry(Part.LineSegment(App.Vector(111, 10, 0), App.Vector(111, 4, 0)), False)
sketch13.addGeometry(Part.LineSegment(App.Vector(111, 4, 0), App.Vector(69, 4, 0)), False)
sketch13.addGeometry(Part.LineSegment(App.Vector(40, 34, 0), App.Vector(40, 40, 0)), False)
sketch13.addGeometry(Part.LineSegment(App.Vector(40, 40, 0), App.Vector(82, 40, 0)), False)
sketch13.addGeometry(Part.LineSegment(App.Vector(82, 40, 0), App.Vector(82, 34, 0)), False)
sketch13.addGeometry(Part.LineSegment(App.Vector(82, 34, 0), App.Vector(40, 34, 0)), False)
sketch13.addConstraint(Sketcher.Constraint("Coincident", 0, 2, 1, 1))
sketch13.addConstraint(Sketcher.Constraint("Coincident", 1, 2, 2, 1))
sketch13.addConstraint(Sketcher.Constraint("Coincident", 2, 2, 3, 1))
sketch13.addConstraint(Sketcher.Constraint("Coincident", 3, 2, 0, 1))
sketch13.addConstraint(Sketcher.Constraint("Coincident", 4, 2, 5, 1))
sketch13.addConstraint(Sketcher.Constraint("Coincident", 5, 2, 6, 1))
sketch13.addConstraint(Sketcher.Constraint("Coincident", 6, 2, 7, 1))
sketch13.addConstraint(Sketcher.Constraint("Coincident", 7, 2, 4, 1))
sketch13.addConstraint(Sketcher.Constraint("Vertical", 0))
sketch13.addConstraint(Sketcher.Constraint("Horizontal", 1))
sketch13.addConstraint(Sketcher.Constraint("Vertical", 2))
sketch13.addConstraint(Sketcher.Constraint("Horizontal", 3))
sketch13.addConstraint(Sketcher.Constraint("Vertical", 4))
sketch13.addConstraint(Sketcher.Constraint("Horizontal", 5))
sketch13.addConstraint(Sketcher.Constraint("Vertical", 6))
sketch13.addConstraint(Sketcher.Constraint("Horizontal", 7))
sketch13.addConstraint(Sketcher.Constraint("Equal", 3, 5))
sketch13.addConstraint(Sketcher.Constraint("Equal", 2, 4))
sketch13.addConstraint(Sketcher.Constraint("DistanceX", 1, 1, 1, 2, 42.0))
sketch13.addConstraint(Sketcher.Constraint("DistanceY", 0, 1, 0, 2, 5.5))
sketch13.addConstraint(Sketcher.Constraint("DistanceX", -1, 1, 0, 2, 69.0))
sketch13.addConstraint(Sketcher.Constraint("DistanceY", -1, 1, 2, 2, 4.0))
sketch13.addConstraint(Sketcher.Constraint("DistanceX", -1, 1, 4, 2, 40.0))
sketch13.addConstraint(Sketcher.Constraint("DistanceY", -1, 1, 4, 2, 40.0))
pocket6 = body.newObject("PartDesign::Pocket", "Pocket005")
pocket6.Profile = sketch13
pocket6.Length = 2
pocket6.Reversed = True

sketch14 = body.newObject("Sketcher::SketchObject", "Sketch013")
sketch14.AttachmentSupport = (doc.getObject("XY_Plane"), [""])
sketch14.MapMode = "FlatFace"
sketch14.addGeometry(Part.LineSegment(App.Vector(35, 14, 0), App.Vector(35, 30, 0)), False)
sketch14.addGeometry(Part.LineSegment(App.Vector(35, 30, 0), App.Vector(40, 30, 0)), False)
sketch14.addGeometry(Part.LineSegment(App.Vector(40, 30, 0), App.Vector(40, 14, 0)), False)
sketch14.addGeometry(Part.LineSegment(App.Vector(40, 14, 0), App.Vector(35, 14, 0)), False)
sketch14.addGeometry(Part.LineSegment(App.Vector(111, 14, 0), App.Vector(111, 30, 0)), False)
sketch14.addGeometry(Part.LineSegment(App.Vector(111, 30, 0), App.Vector(116, 30, 0)), False)
sketch14.addGeometry(Part.LineSegment(App.Vector(116, 30, 0), App.Vector(116, 14, 0)), False)
sketch14.addGeometry(Part.LineSegment(App.Vector(116, 14, 0), App.Vector(111, 14, 0)), False)
sketch14.addConstraint(Sketcher.Constraint("Coincident", 0, 2, 1, 1))
sketch14.addConstraint(Sketcher.Constraint("Coincident", 1, 2, 2, 1))
sketch14.addConstraint(Sketcher.Constraint("Coincident", 2, 2, 3, 1))
sketch14.addConstraint(Sketcher.Constraint("Coincident", 3, 2, 0, 1))
sketch14.addConstraint(Sketcher.Constraint("Coincident", 4, 2, 5, 1))
sketch14.addConstraint(Sketcher.Constraint("Coincident", 5, 2, 6, 1))
sketch14.addConstraint(Sketcher.Constraint("Coincident", 6, 2, 7, 1))
sketch14.addConstraint(Sketcher.Constraint("Coincident", 7, 2, 4, 1))
sketch14.addConstraint(Sketcher.Constraint("Vertical", 0))
sketch14.addConstraint(Sketcher.Constraint("Horizontal", 1))
sketch14.addConstraint(Sketcher.Constraint("Vertical", 2))
sketch14.addConstraint(Sketcher.Constraint("Horizontal", 3))
sketch14.addConstraint(Sketcher.Constraint("Vertical", 4))
sketch14.addConstraint(Sketcher.Constraint("Horizontal", 5))
sketch14.addConstraint(Sketcher.Constraint("Vertical", 6))
sketch14.addConstraint(Sketcher.Constraint("Horizontal", 7))
sketch14.addConstraint(Sketcher.Constraint("Horizontal", 1, 2, 4, 2))
sketch14.addConstraint(Sketcher.Constraint("Horizontal", 3, 2, 6, 2))
sketch14.addConstraint(Sketcher.Constraint("Equal", 3, 5))
sketch14.addConstraint(Sketcher.Constraint("DistanceX", 1, 1, 1, 2, 5.0))
sketch14.addConstraint(Sketcher.Constraint("DistanceY", 0, 1, 0, 2, 16.0))
sketch14.addConstraint(Sketcher.Constraint("DistanceX", -1, 1, 0, 2, 35.0))
sketch14.addConstraint(Sketcher.Constraint("DistanceY", -1, 1, 0, 2, 30.0))
sketch14.addConstraint(Sketcher.Constraint("DistanceX", -1, 1, 4, 2, 111.0))
pocket7 = body.newObject("PartDesign::Pocket", "Pocket006")
pocket7.Profile = sketch14
pocket7.Length = 3
pocket7.Reversed = True

sketch15 = body.newObject("Sketcher::SketchObject", "Sketch014")
sketch15.AttachmentSupport = (doc.getObject("XY_Plane"), [""])
sketch15.MapMode = "FlatFace"
sketch15.addGeometry(Part.LineSegment(App.Vector(8, 12, 0), App.Vector(8, 32, 0)), False)
sketch15.addGeometry(Part.LineSegment(App.Vector(8, 32, 0), App.Vector(23, 32, 0)), False)
sketch15.addGeometry(Part.LineSegment(App.Vector(23, 32, 0), App.Vector(23, 12, 0)), False)
sketch15.addGeometry(Part.LineSegment(App.Vector(23, 12, 0), App.Vector(8, 12, 0)), False)
sketch15.addGeometry(Part.LineSegment(App.Vector(21, 30, 0), App.Vector(10, 30, 0)), False)
sketch15.addGeometry(Part.LineSegment(App.Vector(10, 30, 0), App.Vector(10, 14, 0)), False)
sketch15.addGeometry(Part.LineSegment(App.Vector(10, 14, 0), App.Vector(21, 14, 0)), False)
sketch15.addGeometry(Part.LineSegment(App.Vector(21, 14, 0), App.Vector(21, 30, 0)), False)
sketch15.addConstraint(Sketcher.Constraint("Coincident", 0, 2, 1, 1))
sketch15.addConstraint(Sketcher.Constraint("Coincident", 1, 2, 2, 1))
sketch15.addConstraint(Sketcher.Constraint("Coincident", 2, 2, 3, 1))
sketch15.addConstraint(Sketcher.Constraint("Coincident", 3, 2, 0, 1))
sketch15.addConstraint(Sketcher.Constraint("Coincident", 4, 2, 5, 1))
sketch15.addConstraint(Sketcher.Constraint("Coincident", 5, 2, 6, 1))
sketch15.addConstraint(Sketcher.Constraint("Coincident", 6, 2, 7, 1))
sketch15.addConstraint(Sketcher.Constraint("Coincident", 7, 2, 4, 1))
sketch15.addConstraint(Sketcher.Constraint("Vertical", 0))
sketch15.addConstraint(Sketcher.Constraint("Horizontal", 1))
sketch15.addConstraint(Sketcher.Constraint("Vertical", 2))
sketch15.addConstraint(Sketcher.Constraint("Horizontal", 3))
sketch15.addConstraint(Sketcher.Constraint("Horizontal", 4))
sketch15.addConstraint(Sketcher.Constraint("Vertical", 5))
sketch15.addConstraint(Sketcher.Constraint("Horizontal", 6))
sketch15.addConstraint(Sketcher.Constraint("Vertical", 7))
sketch15.addConstraint(Sketcher.Constraint("DistanceX", 0, 2, 4, 2, 2.0))
sketch15.addConstraint(Sketcher.Constraint("DistanceY", 4, 2, 0, 2, 2.0))
sketch15.addConstraint(Sketcher.Constraint("DistanceY", 3, 2, 5, 2, 2.0))
sketch15.addConstraint(Sketcher.Constraint("DistanceX", 6, 2, 2, 2, 2.0))
sketch15.addConstraint(Sketcher.Constraint("DistanceX", 1, 1, 1, 2, 14.191287))
sketch15.addConstraint(Sketcher.Constraint("DistanceY", 0, 1, 0, 2, 20.176647))
sketch15.addConstraint(Sketcher.Constraint("DistanceX", -1, 1, 0, 2, 8.321108))
sketch15.addConstraint(Sketcher.Constraint("DistanceY", -1, 1, 0, 2, 32.014153))
pad8 = body.newObject("PartDesign::Pad", "Pad007")
pad8.Profile = sketch15
pad8.Length = 2
pad8.Reversed = True

doc.recompute()
